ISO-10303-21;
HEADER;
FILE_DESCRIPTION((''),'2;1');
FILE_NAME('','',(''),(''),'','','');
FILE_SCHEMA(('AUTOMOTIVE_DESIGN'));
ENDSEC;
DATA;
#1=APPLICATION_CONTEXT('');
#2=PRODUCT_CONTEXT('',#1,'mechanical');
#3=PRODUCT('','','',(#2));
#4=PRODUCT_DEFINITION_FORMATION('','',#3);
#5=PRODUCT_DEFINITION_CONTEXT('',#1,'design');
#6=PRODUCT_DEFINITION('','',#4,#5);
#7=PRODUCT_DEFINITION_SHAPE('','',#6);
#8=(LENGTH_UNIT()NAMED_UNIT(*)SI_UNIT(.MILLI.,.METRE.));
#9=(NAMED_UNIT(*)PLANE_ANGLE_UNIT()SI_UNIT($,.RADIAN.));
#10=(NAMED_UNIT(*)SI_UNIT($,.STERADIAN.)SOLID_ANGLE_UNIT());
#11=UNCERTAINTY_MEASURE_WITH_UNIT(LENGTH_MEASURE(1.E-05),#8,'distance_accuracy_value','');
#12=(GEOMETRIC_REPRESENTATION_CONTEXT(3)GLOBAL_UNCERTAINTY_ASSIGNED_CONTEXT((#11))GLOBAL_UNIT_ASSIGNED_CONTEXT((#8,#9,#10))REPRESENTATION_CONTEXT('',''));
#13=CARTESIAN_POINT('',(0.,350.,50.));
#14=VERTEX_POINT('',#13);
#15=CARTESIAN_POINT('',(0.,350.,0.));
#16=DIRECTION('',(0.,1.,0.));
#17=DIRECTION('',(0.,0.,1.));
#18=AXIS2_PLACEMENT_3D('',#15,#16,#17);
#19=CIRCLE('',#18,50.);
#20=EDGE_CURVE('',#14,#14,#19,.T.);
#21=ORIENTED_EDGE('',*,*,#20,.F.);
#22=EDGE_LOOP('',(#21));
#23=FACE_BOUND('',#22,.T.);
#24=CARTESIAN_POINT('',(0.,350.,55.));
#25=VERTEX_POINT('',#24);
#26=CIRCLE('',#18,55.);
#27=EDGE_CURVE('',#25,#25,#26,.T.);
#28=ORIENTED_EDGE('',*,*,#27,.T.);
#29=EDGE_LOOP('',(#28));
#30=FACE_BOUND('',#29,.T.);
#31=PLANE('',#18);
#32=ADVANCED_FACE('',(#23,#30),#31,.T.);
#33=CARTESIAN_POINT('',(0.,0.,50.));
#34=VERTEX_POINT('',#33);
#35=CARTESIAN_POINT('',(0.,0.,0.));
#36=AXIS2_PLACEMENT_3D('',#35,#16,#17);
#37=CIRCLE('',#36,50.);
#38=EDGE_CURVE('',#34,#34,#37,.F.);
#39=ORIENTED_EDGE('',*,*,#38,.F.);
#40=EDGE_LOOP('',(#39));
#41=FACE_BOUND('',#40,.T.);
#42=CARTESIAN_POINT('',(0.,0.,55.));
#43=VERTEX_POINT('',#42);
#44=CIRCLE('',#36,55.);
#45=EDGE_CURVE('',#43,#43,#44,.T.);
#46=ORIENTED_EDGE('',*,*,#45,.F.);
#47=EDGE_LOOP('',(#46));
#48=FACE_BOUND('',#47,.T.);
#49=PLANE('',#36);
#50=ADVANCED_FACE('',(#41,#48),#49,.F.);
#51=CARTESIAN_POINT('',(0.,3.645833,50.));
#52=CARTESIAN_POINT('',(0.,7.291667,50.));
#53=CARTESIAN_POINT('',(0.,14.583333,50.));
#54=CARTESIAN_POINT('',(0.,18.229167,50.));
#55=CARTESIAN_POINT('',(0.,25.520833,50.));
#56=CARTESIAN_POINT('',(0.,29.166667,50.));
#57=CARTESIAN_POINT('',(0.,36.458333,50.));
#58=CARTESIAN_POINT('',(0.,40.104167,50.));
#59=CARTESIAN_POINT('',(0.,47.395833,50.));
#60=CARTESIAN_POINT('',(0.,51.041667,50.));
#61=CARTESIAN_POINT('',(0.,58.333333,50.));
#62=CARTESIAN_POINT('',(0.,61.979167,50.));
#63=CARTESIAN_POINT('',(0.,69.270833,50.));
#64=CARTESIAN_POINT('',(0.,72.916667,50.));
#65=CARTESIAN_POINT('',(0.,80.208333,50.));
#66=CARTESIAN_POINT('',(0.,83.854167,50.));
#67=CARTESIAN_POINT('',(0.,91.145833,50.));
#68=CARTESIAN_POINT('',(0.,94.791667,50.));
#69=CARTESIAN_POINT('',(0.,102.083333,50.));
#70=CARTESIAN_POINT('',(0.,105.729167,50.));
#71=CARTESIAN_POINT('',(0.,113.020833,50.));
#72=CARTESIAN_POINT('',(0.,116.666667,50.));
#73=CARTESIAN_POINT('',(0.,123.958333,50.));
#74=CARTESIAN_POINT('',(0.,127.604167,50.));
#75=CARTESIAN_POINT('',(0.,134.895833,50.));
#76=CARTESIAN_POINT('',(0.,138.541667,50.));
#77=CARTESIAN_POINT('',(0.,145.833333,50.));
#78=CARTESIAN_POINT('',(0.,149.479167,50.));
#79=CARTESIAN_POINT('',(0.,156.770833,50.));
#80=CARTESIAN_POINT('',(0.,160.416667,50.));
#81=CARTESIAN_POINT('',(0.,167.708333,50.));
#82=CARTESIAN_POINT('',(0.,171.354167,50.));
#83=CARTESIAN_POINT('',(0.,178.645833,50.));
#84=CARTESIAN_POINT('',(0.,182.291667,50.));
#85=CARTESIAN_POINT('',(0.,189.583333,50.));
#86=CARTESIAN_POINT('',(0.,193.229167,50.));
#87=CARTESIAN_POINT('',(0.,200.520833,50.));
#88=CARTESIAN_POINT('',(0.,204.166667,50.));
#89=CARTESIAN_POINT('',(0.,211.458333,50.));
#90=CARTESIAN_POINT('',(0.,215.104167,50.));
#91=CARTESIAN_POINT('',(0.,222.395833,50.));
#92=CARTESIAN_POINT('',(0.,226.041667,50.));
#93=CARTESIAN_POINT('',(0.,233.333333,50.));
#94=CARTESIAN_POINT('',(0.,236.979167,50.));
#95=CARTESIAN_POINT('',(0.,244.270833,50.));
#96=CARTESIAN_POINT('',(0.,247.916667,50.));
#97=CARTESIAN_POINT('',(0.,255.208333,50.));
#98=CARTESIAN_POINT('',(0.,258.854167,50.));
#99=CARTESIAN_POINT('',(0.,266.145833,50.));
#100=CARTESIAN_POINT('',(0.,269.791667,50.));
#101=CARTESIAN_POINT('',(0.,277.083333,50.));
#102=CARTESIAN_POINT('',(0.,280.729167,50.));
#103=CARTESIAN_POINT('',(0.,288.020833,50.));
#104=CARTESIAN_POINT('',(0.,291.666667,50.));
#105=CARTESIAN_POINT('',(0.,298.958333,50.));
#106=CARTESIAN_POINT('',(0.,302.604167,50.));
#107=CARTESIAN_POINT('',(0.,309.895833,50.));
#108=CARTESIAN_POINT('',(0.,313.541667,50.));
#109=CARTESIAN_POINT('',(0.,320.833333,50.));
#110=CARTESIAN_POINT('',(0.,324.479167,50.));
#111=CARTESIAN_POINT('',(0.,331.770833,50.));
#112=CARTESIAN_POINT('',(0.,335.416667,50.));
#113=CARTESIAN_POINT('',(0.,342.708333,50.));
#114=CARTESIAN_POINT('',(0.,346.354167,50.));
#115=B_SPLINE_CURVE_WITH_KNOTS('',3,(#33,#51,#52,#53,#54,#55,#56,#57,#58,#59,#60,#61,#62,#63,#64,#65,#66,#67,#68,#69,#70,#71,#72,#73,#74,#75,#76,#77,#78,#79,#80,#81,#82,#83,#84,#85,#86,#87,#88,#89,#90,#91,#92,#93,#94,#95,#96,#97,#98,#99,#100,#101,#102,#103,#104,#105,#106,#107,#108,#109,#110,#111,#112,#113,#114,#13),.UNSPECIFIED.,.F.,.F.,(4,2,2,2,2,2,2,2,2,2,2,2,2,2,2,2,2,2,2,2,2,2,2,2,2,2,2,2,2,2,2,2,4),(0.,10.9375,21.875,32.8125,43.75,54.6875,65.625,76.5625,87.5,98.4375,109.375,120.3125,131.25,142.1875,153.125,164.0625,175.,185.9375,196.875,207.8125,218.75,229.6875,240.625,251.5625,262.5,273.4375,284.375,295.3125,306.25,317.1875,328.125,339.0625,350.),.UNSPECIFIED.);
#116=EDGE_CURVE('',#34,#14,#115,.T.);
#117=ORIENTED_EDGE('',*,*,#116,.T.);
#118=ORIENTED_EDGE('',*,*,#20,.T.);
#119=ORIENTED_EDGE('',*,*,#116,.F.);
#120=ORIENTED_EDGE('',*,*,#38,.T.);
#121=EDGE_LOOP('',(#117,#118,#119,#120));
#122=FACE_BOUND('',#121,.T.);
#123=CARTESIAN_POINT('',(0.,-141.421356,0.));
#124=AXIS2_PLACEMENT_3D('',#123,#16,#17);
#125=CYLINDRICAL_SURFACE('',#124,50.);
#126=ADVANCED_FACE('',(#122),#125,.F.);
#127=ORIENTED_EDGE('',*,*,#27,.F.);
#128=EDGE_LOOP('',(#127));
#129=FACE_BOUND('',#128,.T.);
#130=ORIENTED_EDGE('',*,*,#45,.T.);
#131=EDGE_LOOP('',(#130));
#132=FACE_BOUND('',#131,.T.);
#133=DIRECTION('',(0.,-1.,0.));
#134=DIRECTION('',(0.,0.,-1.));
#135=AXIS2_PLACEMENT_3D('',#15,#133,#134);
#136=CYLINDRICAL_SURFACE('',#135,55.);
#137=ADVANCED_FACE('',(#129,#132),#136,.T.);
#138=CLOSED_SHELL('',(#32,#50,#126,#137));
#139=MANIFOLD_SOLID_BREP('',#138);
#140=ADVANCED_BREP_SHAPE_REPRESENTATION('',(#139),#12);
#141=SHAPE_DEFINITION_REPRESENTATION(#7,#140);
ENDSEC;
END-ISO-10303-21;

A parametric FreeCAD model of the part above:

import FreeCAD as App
import Part
import Sketcher
from FreeCAD import Vector

doc = App.newDocument("Part")
body = doc.addObject("PartDesign::Body", "Body")

sketch1 = body.newObject("Sketcher::SketchObject", "Sketch")
sketch1.AttachmentSupport = (doc.getObject("XZ_Plane"), [""])
sketch1.MapMode = "FlatFace"
sketch1.addGeometry(Part.Circle(Vector(0, 0, 0), Vector(0, 0, 1), 55), False)
sketch1.addConstraint([
    Sketcher.Constraint("Coincident", 0, 3, -1, 1),
    Sketcher.Constraint("Diameter", 0, 110.0),
])
pad1 = body.newObject("PartDesign::Pad", "Pad")
pad1.Profile = sketch1
pad1.Length = 350
pad1.Reversed = True

sketch2 = body.newObject("Sketcher::SketchObject", "Sketch001")
sketch2.AttachmentSupport = (doc.getObject("XZ_Plane"), [""])
sketch2.MapMode = "FlatFace"
sketch2.AttachmentOffset = App.Placement(Vector(0, 0, -350), App.Rotation())
sketch2.addGeometry(Part.Circle(Vector(0, 0, 0), Vector(0, 0, 1), 50), False)
sketch2.addConstraint([
    Sketcher.Constraint("Coincident", 0, 3, -1, 1),
    Sketcher.Constraint("Diameter", 0, 100.0),
])
pocket1 = body.newObject("PartDesign::Pocket", "Pocket")
pocket1.Profile = sketch2
pocket1.Length = 350
pocket1.Reversed = True

doc.recompute()
